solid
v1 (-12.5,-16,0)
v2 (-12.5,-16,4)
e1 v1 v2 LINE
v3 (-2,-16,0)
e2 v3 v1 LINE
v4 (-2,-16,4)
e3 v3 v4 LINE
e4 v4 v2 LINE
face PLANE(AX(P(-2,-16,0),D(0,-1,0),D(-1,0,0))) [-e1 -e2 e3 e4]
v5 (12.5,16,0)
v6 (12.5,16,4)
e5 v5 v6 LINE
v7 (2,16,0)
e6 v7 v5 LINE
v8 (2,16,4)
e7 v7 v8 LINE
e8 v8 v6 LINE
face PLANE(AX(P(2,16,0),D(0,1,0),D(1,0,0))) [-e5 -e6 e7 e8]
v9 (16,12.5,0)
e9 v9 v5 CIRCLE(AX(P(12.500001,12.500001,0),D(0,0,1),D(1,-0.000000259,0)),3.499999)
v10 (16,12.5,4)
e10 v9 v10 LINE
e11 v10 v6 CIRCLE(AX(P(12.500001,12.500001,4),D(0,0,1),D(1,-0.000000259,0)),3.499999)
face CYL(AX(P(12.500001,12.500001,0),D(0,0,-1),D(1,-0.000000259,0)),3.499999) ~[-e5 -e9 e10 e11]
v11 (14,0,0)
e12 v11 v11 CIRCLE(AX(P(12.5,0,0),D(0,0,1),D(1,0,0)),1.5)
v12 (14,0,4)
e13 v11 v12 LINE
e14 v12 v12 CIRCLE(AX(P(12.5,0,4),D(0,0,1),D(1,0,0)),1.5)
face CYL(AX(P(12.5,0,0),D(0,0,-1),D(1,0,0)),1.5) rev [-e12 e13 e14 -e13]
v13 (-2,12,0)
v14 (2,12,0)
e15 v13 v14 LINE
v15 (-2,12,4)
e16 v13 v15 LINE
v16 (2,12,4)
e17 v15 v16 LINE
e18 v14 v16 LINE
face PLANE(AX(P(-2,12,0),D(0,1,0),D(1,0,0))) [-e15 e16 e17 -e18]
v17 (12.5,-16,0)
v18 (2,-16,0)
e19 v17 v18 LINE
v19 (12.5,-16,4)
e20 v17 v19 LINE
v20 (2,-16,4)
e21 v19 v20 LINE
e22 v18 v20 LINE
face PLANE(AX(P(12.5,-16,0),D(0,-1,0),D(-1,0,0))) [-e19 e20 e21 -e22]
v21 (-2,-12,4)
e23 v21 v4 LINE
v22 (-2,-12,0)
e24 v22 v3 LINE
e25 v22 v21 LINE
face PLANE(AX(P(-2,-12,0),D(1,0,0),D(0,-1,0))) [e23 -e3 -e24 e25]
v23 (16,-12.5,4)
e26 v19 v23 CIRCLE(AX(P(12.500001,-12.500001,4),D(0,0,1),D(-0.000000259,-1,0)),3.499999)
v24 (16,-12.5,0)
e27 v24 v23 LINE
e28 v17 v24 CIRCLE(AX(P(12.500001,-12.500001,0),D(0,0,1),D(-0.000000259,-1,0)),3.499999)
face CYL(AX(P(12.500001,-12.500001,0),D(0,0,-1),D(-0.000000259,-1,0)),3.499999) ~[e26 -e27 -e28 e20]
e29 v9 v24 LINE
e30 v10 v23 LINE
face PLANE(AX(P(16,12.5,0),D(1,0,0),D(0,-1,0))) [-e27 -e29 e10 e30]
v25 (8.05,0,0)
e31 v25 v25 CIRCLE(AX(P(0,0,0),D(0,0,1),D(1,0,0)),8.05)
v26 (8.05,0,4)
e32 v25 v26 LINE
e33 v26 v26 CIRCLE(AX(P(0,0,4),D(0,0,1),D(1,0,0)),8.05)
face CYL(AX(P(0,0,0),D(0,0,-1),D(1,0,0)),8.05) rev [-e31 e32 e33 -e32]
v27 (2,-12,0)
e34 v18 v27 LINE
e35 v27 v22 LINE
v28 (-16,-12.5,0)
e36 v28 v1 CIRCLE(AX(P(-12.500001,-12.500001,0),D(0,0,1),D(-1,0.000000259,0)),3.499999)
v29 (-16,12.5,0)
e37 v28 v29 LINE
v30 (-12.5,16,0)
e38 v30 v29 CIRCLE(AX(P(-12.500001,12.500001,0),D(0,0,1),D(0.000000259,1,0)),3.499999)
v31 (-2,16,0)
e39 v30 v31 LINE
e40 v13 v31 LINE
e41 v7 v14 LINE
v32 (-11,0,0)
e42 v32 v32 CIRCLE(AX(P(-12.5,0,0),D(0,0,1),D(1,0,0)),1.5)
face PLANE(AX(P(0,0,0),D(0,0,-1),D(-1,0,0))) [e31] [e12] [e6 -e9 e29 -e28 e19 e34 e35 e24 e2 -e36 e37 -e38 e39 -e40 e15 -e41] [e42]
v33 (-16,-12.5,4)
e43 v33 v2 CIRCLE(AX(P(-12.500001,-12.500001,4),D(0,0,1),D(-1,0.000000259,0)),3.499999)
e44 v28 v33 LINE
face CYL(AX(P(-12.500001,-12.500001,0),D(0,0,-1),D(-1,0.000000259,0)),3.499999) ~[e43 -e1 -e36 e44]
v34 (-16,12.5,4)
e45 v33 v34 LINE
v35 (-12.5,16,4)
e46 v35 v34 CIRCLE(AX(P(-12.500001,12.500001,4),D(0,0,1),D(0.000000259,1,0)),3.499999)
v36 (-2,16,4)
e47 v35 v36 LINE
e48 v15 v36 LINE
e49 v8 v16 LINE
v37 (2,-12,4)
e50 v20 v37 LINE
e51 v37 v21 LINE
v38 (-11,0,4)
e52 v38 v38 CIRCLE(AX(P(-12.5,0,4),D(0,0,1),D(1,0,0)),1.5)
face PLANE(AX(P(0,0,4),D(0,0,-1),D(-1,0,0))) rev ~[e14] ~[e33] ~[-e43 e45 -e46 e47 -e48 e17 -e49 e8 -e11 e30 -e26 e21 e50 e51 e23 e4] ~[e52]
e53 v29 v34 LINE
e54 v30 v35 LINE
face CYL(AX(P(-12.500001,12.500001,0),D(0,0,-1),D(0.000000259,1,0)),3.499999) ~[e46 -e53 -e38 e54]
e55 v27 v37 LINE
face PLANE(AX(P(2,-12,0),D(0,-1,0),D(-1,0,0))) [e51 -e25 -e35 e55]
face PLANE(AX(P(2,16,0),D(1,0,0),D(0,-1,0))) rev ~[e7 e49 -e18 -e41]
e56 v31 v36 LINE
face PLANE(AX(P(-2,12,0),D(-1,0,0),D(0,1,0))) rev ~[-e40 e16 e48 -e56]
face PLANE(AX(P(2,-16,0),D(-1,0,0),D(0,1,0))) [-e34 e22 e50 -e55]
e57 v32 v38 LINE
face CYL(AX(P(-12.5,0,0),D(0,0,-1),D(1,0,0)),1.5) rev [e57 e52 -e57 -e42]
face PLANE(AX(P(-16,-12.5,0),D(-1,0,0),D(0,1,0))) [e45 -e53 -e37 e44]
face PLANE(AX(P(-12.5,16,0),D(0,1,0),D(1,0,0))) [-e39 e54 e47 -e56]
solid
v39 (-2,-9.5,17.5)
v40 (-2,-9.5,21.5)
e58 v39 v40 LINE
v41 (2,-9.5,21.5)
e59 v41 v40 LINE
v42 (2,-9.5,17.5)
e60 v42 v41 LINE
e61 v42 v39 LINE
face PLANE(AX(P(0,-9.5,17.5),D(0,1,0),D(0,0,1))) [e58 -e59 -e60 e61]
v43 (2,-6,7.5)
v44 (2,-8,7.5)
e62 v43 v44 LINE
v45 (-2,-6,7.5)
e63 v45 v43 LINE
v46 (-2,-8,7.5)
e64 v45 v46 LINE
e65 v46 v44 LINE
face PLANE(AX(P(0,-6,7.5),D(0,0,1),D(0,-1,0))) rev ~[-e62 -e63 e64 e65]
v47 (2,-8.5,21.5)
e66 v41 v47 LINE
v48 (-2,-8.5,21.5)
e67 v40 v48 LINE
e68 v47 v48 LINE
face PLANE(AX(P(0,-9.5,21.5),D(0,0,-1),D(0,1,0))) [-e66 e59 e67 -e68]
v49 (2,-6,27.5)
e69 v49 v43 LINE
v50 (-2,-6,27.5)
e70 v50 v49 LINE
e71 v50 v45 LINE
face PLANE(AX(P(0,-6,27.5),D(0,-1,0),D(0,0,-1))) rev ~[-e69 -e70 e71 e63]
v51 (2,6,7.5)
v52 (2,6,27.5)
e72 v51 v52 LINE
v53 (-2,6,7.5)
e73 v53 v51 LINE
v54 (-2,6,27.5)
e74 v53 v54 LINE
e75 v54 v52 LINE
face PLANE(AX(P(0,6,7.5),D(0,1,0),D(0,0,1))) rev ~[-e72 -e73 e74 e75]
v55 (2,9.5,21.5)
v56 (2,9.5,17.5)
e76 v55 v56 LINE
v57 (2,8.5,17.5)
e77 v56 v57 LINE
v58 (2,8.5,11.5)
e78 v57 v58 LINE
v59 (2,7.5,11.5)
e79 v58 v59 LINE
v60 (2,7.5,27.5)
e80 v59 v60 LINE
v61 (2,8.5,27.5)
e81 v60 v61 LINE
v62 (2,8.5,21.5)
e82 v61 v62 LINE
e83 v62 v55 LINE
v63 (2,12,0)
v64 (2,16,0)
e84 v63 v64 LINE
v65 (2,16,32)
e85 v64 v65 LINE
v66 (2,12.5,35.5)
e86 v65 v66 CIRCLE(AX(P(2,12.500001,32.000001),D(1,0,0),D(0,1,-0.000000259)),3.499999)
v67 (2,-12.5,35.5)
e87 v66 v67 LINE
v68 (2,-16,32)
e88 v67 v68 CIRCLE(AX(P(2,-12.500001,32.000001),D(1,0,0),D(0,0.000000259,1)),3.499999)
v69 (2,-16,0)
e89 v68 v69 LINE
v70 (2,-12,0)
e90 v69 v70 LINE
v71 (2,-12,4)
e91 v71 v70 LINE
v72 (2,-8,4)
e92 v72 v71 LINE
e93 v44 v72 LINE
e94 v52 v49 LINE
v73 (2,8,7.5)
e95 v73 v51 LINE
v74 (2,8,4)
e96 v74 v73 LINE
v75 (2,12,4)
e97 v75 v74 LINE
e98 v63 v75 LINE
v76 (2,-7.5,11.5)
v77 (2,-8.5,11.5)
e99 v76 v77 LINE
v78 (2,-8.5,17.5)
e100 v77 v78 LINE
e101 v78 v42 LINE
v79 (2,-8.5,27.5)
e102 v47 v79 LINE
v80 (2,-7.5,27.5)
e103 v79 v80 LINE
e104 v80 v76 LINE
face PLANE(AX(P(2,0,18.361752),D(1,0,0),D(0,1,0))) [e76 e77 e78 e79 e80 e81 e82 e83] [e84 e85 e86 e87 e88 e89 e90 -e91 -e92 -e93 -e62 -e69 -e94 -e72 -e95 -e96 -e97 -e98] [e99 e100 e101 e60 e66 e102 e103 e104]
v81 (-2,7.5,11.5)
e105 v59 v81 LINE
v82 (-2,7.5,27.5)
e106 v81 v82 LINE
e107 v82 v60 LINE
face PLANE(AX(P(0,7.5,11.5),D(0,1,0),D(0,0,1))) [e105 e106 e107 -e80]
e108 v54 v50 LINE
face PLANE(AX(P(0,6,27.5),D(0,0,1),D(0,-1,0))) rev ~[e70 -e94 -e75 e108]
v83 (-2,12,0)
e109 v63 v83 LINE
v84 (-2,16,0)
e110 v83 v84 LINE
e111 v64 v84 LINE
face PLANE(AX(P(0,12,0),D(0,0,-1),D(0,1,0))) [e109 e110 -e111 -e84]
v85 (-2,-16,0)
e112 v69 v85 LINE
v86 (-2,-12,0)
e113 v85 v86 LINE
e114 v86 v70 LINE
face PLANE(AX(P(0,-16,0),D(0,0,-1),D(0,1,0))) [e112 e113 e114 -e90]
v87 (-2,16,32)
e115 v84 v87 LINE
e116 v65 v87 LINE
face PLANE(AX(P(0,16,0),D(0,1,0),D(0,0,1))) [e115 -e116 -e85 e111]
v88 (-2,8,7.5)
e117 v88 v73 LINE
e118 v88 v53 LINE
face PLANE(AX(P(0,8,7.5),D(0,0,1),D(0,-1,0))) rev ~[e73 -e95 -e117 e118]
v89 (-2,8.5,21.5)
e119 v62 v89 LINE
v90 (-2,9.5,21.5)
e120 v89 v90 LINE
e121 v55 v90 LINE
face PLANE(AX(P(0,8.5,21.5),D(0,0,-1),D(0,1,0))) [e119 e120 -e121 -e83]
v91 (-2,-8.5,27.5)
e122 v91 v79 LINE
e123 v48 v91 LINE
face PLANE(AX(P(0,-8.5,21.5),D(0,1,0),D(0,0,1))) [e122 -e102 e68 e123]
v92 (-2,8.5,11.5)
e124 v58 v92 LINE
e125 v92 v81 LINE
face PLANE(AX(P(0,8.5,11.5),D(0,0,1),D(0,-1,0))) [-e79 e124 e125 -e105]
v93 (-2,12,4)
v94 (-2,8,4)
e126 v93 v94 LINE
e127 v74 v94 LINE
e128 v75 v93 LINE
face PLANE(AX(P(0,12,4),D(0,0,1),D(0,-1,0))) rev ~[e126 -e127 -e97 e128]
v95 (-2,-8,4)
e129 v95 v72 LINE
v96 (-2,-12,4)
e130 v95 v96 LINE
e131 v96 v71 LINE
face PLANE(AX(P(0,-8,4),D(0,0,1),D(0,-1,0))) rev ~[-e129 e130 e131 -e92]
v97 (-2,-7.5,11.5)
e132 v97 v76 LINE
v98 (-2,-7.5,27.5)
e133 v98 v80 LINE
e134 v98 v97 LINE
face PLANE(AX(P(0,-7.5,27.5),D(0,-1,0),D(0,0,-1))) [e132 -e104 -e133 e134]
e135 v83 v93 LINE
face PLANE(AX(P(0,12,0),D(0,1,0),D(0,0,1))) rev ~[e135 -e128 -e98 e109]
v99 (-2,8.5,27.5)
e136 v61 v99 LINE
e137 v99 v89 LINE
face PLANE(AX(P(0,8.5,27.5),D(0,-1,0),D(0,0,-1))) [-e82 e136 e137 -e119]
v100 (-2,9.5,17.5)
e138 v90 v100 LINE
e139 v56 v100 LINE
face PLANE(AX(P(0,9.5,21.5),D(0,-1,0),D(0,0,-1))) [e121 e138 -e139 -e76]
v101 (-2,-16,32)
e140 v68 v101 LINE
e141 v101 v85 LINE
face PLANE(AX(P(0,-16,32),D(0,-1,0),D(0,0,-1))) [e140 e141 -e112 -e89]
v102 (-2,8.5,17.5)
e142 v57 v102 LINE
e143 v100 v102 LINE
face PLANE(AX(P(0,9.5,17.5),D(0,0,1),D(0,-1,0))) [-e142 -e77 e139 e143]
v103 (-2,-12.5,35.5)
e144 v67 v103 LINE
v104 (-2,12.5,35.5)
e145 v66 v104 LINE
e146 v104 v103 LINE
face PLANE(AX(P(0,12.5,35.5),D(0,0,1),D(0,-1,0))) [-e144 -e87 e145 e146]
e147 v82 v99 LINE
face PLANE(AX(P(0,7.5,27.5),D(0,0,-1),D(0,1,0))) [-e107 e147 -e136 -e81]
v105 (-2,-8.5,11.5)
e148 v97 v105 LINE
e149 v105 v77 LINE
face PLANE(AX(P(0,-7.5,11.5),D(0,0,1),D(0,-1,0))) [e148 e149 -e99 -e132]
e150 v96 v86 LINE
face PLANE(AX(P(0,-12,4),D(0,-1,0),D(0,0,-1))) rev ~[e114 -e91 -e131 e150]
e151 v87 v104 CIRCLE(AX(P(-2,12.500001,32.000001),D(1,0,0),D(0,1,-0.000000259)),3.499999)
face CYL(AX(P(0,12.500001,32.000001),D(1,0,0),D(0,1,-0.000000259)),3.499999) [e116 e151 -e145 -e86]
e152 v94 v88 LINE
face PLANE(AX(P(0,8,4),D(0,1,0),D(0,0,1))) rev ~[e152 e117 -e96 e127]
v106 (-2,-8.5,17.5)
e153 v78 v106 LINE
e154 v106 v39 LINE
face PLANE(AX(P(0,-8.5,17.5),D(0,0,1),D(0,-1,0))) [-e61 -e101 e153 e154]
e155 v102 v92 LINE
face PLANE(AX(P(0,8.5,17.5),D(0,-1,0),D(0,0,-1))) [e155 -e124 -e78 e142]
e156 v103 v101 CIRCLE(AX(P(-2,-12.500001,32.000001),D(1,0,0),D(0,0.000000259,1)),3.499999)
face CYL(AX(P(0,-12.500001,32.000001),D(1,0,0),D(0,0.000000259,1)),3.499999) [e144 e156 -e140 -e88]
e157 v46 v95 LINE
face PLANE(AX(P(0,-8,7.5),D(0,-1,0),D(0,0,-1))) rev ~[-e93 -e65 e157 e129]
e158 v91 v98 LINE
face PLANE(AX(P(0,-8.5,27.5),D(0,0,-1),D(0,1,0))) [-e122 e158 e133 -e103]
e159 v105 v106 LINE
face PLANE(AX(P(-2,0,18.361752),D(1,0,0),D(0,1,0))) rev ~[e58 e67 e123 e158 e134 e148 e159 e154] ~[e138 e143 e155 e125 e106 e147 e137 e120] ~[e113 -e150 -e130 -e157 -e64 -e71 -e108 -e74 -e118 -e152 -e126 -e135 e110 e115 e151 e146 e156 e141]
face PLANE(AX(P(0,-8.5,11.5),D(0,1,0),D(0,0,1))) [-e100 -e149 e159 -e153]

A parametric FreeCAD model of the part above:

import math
import FreeCAD as App
import Part
import Sketcher
from FreeCAD import Vector
Q = App.Units.Quantity


def add_polygon(sketch, points):
    """Adds a closed chain of lines whose ends are joined by coincident constraints."""
    first, n = sketch.GeometryCount, len(points)
    for a, b in zip(points, points[1:] + points[:1]):
        sketch.addGeometry(Part.LineSegment(App.Vector(*a, 0), App.Vector(*b, 0)), False)
    for i in range(n):
        sketch.addConstraint(Sketcher.Constraint("Coincident", first + i, 2, first + (i + 1) % n, 1))

doc = App.newDocument("Part")
body = doc.addObject("PartDesign::Body", "Body")

# Sketch on XY plane
sketch1 = body.newObject("Sketcher::SketchObject", "Sketch")
sketch1.AttachmentSupport = (doc.getObject("XY_Plane"), [""])
sketch1.MapMode = "FlatFace"
sketch1.addGeometry([
    Part.LineSegment(Vector(-2, 16, 0), Vector(-12.5, 16, 0)),  # 0
    Part.ArcOfCircle(Part.Circle(Vector(-12.500001, 12.500001, 0), Vector(0, 0, 1), 3.499999), math.radians(89.999985), math.radians(180.000015)),  # 1
    Part.LineSegment(Vector(-16, 12.5, 0), Vector(-16, -12.5, 0)),  # 2
    Part.ArcOfCircle(Part.Circle(Vector(-12.500001, -12.500001, 0), Vector(0, 0, 1), 3.499999), math.radians(179.999985), math.radians(270.000015)),  # 3
    Part.LineSegment(Vector(-12.5, -16, 0), Vector(-2, -16, 0)),  # 4
    Part.LineSegment(Vector(-2, -16, 0), Vector(-2, -12, 0)),  # 5
    Part.LineSegment(Vector(-2, -12, 0), Vector(2, -12, 0)),  # 6
    Part.LineSegment(Vector(2, -12, 0), Vector(2, -16, 0)),  # 7
    Part.LineSegment(Vector(2, -16, 0), Vector(12.5, -16, 0)),  # 8
    Part.ArcOfCircle(Part.Circle(Vector(12.500001, -12.500001, 0), Vector(0, 0, 1), 3.499999), math.radians(-90.000015), math.radians(0.000015)),  # 9
    Part.LineSegment(Vector(16, -12.5, 0), Vector(16, 12.5, 0)),  # 10
    Part.ArcOfCircle(Part.Circle(Vector(12.500001, 12.500001, 0), Vector(0, 0, 1), 3.499999), math.radians(-0.000015), math.radians(90.000015)),  # 11
    Part.LineSegment(Vector(12.5, 16, 0), Vector(2, 16, 0)),  # 12
    Part.LineSegment(Vector(2, 16, 0), Vector(2, 12, 0)),  # 13
    Part.LineSegment(Vector(2, 12, 0), Vector(-2, 12, 0)),  # 14
    Part.LineSegment(Vector(-2, 12, 0), Vector(-2, 16, 0)),  # 15
    Part.Circle(Vector(12.5, 0, 0), Vector(0, 0, 1), 1.5),  # 16
    Part.Circle(Vector(0, 0, 0), Vector(0, 0, 1), 8.05),  # 17
    Part.Circle(Vector(-12.5, 0, 0), Vector(0, 0, 1), 1.5),  # 18
], False)
sketch1.addConstraint([
    Sketcher.Constraint("Tangent", 0, 2, 1, 1),
    Sketcher.Constraint("Tangent", 1, 2, 2, 1),
    Sketcher.Constraint("Tangent", 2, 2, 3, 1),
    Sketcher.Constraint("Tangent", 3, 2, 4, 1),
    Sketcher.Constraint("Coincident", 4, 2, 5, 1),
    Sketcher.Constraint("Coincident", 5, 2, 6, 1),
    Sketcher.Constraint("Coincident", 6, 2, 7, 1),
    Sketcher.Constraint("Coincident", 7, 2, 8, 1),
    Sketcher.Constraint("Tangent", 8, 2, 9, 1),
    Sketcher.Constraint("Tangent", 9, 2, 10, 1),
    Sketcher.Constraint("Tangent", 10, 2, 11, 1),
    Sketcher.Constraint("Tangent", 11, 2, 12, 1),
    Sketcher.Constraint("Coincident", 12, 2, 13, 1),
    Sketcher.Constraint("Coincident", 13, 2, 14, 1),
    Sketcher.Constraint("Coincident", 14, 2, 15, 1),
    Sketcher.Constraint("Coincident", 15, 2, 0, 1),
    Sketcher.Constraint("Horizontal", 0),
    Sketcher.Constraint("Vertical", 2),
    Sketcher.Constraint("Horizontal", 4),
    Sketcher.Constraint("Vertical", 5),
    Sketcher.Constraint("Horizontal", 6),
    Sketcher.Constraint("Vertical", 7),
    Sketcher.Constraint("Horizontal", 8),
    Sketcher.Constraint("Vertical", 10),
    Sketcher.Constraint("Horizontal", 12),
    Sketcher.Constraint("Vertical", 13),
    Sketcher.Constraint("Horizontal", 14),
    Sketcher.Constraint("Vertical", 15),
    Sketcher.Constraint("Coincident", 17, 3, -1, 1),
    Sketcher.Constraint("Equal", 1, 3),
    Sketcher.Constraint("Equal", 3, 9),
    Sketcher.Constraint("Equal", 9, 11),
    Sketcher.Constraint("Equal", 16, 18),
    Sketcher.Constraint("Symmetric", 1, 3, 9, 3, -1, 1),
    Sketcher.Constraint("Symmetric", 16, 3, 18, 3, -1, 1),
    Sketcher.Constraint("Symmetric", 4, 2, 12, 2, -1, 1),
    Sketcher.Constraint("Symmetric", 6, 2, 14, 2, -1, 1),
    Sketcher.Constraint("Symmetric", 4, 2, 7, 2, -2),
    Sketcher.Constraint("PointOnObject", 16, 3, -1),
    Sketcher.Constraint("Vertical", 11, 3, 16, 3),
    Sketcher.Constraint("Equal", 14, 5),
    Sketcher.Constraint("Diameter", 16, Q("3 mm")),
    Sketcher.Constraint("Diameter", 17, Q("16.1 mm")),
    Sketcher.Constraint("Radius", 1, Q("3.499999 mm")),
    Sketcher.Constraint("DistanceX", 6, 1, 6, 2, Q("4 mm")),
    Sketcher.Constraint("DistanceY", 2, 2, 2, 1, Q("25 mm")),
    Sketcher.Constraint("DistanceX", 0, 2, 0, 1, Q("10.5 mm")),
])
pad1 = body.newObject("PartDesign::Pad", "Pad")
pad1.Profile = sketch1
pad1.Length = 4
body2 = doc.addObject("PartDesign::Body", "Body001")

# Sketch on YZ plane
sketch2 = body2.newObject("Sketcher::SketchObject", "Sketch001")
sketch2.AttachmentSupport = (doc.getObject("YZ_Plane001"), [""])
sketch2.MapMode = "FlatFace"
sketch2.addGeometry(Part.LineSegment(Vector(-16, 0, 0), Vector(-12, 0, 0)), False)  # 0
sketch2.addGeometry(Part.LineSegment(Vector(-12, 0, 0), Vector(-12, 4, 0)), False)  # 1
sketch2.addGeometry(Part.LineSegment(Vector(-12, 4, 0), Vector(-8, 4, 0)), False)  # 2
sketch2.addGeometry(Part.LineSegment(Vector(-8, 4, 0), Vector(-8, 7.5, 0)), False)  # 3
sketch2.addGeometry(Part.LineSegment(Vector(-8, 7.5, 0), Vector(-6, 7.5, 0)), False)  # 4
sketch2.addGeometry(Part.LineSegment(Vector(-6, 7.5, 0), Vector(-6, 27.5, 0)), False)  # 5
sketch2.addGeometry(Part.LineSegment(Vector(-6, 27.5, 0), Vector(6, 27.5, 0)), False)  # 6
sketch2.addGeometry(Part.LineSegment(Vector(6, 27.5, 0), Vector(6, 7.5, 0)), False)  # 7
sketch2.addGeometry(Part.LineSegment(Vector(6, 7.5, 0), Vector(8, 7.5, 0)), False)  # 8
sketch2.addGeometry(Part.LineSegment(Vector(8, 7.5, 0), Vector(8, 4, 0)), False)  # 9
sketch2.addGeometry(Part.LineSegment(Vector(8, 4, 0), Vector(12, 4, 0)), False)  # 10
sketch2.addGeometry(Part.LineSegment(Vector(12, 4, 0), Vector(12, 0, 0)), False)  # 11
sketch2.addGeometry(Part.LineSegment(Vector(12, 0, 0), Vector(16, 0, 0)), False)  # 12
sketch2.addGeometry(Part.LineSegment(Vector(16, 0, 0), Vector(16, 32, 0)), False)  # 13
sketch2.addGeometry(Part.ArcOfCircle(Part.Circle(Vector(12.500001, 32.000001, 0), Vector(0, 0, 1), 3.499999), math.radians(-0.000015), math.radians(90.000015)), False)  # 14
sketch2.addGeometry(Part.LineSegment(Vector(12.5, 35.5, 0), Vector(-12.5, 35.5, 0)), False)  # 15
sketch2.addGeometry(Part.ArcOfCircle(Part.Circle(Vector(-12.500001, 32.000001, 0), Vector(0, 0, 1), 3.499999), math.radians(89.999985), math.radians(180.000015)), False)  # 16
sketch2.addGeometry(Part.LineSegment(Vector(-16, 32, 0), Vector(-16, 0, 0)), False)  # 17
add_polygon(sketch2, [(-8.5, 21.5), (-8.5, 27.5), (-7.5, 27.5), (-7.5, 11.5), (-8.5, 11.5), (-8.5, 17.5), (-9.5, 17.5), (-9.5, 21.5)])  # lines 18-25
add_polygon(sketch2, [(7.5, 11.5), (7.5, 27.5), (8.5, 27.5), (8.5, 21.5), (9.5, 21.5), (9.5, 17.5), (8.5, 17.5), (8.5, 11.5)])  # lines 26-33
sketch2.addConstraint([
    Sketcher.Constraint("Coincident", 0, 2, 1, 1),
    Sketcher.Constraint("Coincident", 1, 2, 2, 1),
    Sketcher.Constraint("Coincident", 2, 2, 3, 1),
    Sketcher.Constraint("Coincident", 3, 2, 4, 1),
    Sketcher.Constraint("Coincident", 4, 2, 5, 1),
    Sketcher.Constraint("Coincident", 5, 2, 6, 1),
    Sketcher.Constraint("Coincident", 6, 2, 7, 1),
    Sketcher.Constraint("Coincident", 7, 2, 8, 1),
    Sketcher.Constraint("Coincident", 8, 2, 9, 1),
    Sketcher.Constraint("Coincident", 9, 2, 10, 1),
    Sketcher.Constraint("Coincident", 10, 2, 11, 1),
    Sketcher.Constraint("Coincident", 11, 2, 12, 1),
    Sketcher.Constraint("Coincident", 12, 2, 13, 1),
    Sketcher.Constraint("Tangent", 13, 2, 14, 1),
    Sketcher.Constraint("Tangent", 14, 2, 15, 1),
    Sketcher.Constraint("Tangent", 15, 2, 16, 1),
    Sketcher.Constraint("Tangent", 16, 2, 17, 1),
    Sketcher.Constraint("Coincident", 17, 2, 0, 1),
    Sketcher.Constraint("Horizontal", 0),
    Sketcher.Constraint("Vertical", 1),
    Sketcher.Constraint("Horizontal", 2),
    Sketcher.Constraint("Vertical", 3),
    Sketcher.Constraint("Horizontal", 4),
    Sketcher.Constraint("Vertical", 5),
    Sketcher.Constraint("Horizontal", 6),
    Sketcher.Constraint("Vertical", 7),
    Sketcher.Constraint("Horizontal", 8),
    Sketcher.Constraint("Vertical", 9),
    Sketcher.Constraint("Horizontal", 10),
    Sketcher.Constraint("Vertical", 11),
    Sketcher.Constraint("Horizontal", 12),
    Sketcher.Constraint("Vertical", 13),
    Sketcher.Constraint("Horizontal", 15),
    Sketcher.Constraint("Vertical", 17),
    Sketcher.Constraint("Vertical", 18),
    Sketcher.Constraint("Horizontal", 19),
    Sketcher.Constraint("Vertical", 20),
    Sketcher.Constraint("Horizontal", 21),
    Sketcher.Constraint("Vertical", 22),
    Sketcher.Constraint("Horizontal", 23),
    Sketcher.Constraint("Vertical", 24),
    Sketcher.Constraint("Horizontal", 25),
    Sketcher.Constraint("Vertical", 26),
    Sketcher.Constraint("Horizontal", 27),
    Sketcher.Constraint("Vertical", 28),
    Sketcher.Constraint("Horizontal", 29),
    Sketcher.Constraint("Vertical", 30),
    Sketcher.Constraint("Horizontal", 31),
    Sketcher.Constraint("Vertical", 32),
    Sketcher.Constraint("Horizontal", 33),
    Sketcher.Constraint("Equal", 14, 16),
    Sketcher.Constraint("Symmetric", 0, 2, 11, 2, -1, 1),
    Sketcher.Constraint("Symmetric", 4, 2, 7, 2, -2),
    Sketcher.Constraint("Symmetric", 2, 2, 9, 2, -2),
    Sketcher.Constraint("Symmetric", 12, 2, 17, 2, -2),
    Sketcher.Constraint("Symmetric", 19, 2, 26, 2, -2),
    Sketcher.Constraint("Symmetric", 25, 2, 28, 2, -2),
    Sketcher.Constraint("Symmetric", 23, 2, 30, 2, -2),
    Sketcher.Constraint("Symmetric", 21, 2, 32, 2, -2),
    Sketcher.Constraint("Horizontal", 6, 2, 18, 2),
    Sketcher.Constraint("Vertical", 18, 2, 21, 2),
    Sketcher.Constraint("Equal", 0, 2),
    Sketcher.Constraint("Equal", 21, 23),
    Sketcher.Constraint("Equal", 12, 1),
    Sketcher.Constraint("Equal", 18, 22),
    Sketcher.Constraint("Equal", 11, 24),
    Sketcher.Constraint("Radius", 14, Q("3.499999 mm")),
    Sketcher.Constraint("DistanceX", 0, 1, 0, 2, Q("4 mm")),
    Sketcher.Constraint("DistanceX", 4, 1, 4, 2, Q("2 mm")),
    Sketcher.Constraint("DistanceX", 6, 1, 6, 2, Q("12 mm")),
    Sketcher.Constraint("DistanceX", 19, 1, 19, 2, Q("1 mm")),
    Sketcher.Constraint("DistanceY", 5, 1, 5, 2, Q("20 mm")),
    Sketcher.Constraint("DistanceY", 13, 1, 13, 2, Q("32 mm")),
    Sketcher.Constraint("DistanceY", 18, 1, 18, 2, Q("6 mm")),
    Sketcher.Constraint("DistanceY", 3, 1, 3, 2, Q("3.5 mm")),
    Sketcher.Constraint("DistanceX", 16, 3, 18, 2, Q("4.000001 mm")),
])
pad2 = body2.newObject("PartDesign::Pad", "Pad001")
pad2.Profile = sketch2
pad2.Type = "TwoLengths"
pad2.Length = 2
pad2.Length2 = 2

doc.recompute()
